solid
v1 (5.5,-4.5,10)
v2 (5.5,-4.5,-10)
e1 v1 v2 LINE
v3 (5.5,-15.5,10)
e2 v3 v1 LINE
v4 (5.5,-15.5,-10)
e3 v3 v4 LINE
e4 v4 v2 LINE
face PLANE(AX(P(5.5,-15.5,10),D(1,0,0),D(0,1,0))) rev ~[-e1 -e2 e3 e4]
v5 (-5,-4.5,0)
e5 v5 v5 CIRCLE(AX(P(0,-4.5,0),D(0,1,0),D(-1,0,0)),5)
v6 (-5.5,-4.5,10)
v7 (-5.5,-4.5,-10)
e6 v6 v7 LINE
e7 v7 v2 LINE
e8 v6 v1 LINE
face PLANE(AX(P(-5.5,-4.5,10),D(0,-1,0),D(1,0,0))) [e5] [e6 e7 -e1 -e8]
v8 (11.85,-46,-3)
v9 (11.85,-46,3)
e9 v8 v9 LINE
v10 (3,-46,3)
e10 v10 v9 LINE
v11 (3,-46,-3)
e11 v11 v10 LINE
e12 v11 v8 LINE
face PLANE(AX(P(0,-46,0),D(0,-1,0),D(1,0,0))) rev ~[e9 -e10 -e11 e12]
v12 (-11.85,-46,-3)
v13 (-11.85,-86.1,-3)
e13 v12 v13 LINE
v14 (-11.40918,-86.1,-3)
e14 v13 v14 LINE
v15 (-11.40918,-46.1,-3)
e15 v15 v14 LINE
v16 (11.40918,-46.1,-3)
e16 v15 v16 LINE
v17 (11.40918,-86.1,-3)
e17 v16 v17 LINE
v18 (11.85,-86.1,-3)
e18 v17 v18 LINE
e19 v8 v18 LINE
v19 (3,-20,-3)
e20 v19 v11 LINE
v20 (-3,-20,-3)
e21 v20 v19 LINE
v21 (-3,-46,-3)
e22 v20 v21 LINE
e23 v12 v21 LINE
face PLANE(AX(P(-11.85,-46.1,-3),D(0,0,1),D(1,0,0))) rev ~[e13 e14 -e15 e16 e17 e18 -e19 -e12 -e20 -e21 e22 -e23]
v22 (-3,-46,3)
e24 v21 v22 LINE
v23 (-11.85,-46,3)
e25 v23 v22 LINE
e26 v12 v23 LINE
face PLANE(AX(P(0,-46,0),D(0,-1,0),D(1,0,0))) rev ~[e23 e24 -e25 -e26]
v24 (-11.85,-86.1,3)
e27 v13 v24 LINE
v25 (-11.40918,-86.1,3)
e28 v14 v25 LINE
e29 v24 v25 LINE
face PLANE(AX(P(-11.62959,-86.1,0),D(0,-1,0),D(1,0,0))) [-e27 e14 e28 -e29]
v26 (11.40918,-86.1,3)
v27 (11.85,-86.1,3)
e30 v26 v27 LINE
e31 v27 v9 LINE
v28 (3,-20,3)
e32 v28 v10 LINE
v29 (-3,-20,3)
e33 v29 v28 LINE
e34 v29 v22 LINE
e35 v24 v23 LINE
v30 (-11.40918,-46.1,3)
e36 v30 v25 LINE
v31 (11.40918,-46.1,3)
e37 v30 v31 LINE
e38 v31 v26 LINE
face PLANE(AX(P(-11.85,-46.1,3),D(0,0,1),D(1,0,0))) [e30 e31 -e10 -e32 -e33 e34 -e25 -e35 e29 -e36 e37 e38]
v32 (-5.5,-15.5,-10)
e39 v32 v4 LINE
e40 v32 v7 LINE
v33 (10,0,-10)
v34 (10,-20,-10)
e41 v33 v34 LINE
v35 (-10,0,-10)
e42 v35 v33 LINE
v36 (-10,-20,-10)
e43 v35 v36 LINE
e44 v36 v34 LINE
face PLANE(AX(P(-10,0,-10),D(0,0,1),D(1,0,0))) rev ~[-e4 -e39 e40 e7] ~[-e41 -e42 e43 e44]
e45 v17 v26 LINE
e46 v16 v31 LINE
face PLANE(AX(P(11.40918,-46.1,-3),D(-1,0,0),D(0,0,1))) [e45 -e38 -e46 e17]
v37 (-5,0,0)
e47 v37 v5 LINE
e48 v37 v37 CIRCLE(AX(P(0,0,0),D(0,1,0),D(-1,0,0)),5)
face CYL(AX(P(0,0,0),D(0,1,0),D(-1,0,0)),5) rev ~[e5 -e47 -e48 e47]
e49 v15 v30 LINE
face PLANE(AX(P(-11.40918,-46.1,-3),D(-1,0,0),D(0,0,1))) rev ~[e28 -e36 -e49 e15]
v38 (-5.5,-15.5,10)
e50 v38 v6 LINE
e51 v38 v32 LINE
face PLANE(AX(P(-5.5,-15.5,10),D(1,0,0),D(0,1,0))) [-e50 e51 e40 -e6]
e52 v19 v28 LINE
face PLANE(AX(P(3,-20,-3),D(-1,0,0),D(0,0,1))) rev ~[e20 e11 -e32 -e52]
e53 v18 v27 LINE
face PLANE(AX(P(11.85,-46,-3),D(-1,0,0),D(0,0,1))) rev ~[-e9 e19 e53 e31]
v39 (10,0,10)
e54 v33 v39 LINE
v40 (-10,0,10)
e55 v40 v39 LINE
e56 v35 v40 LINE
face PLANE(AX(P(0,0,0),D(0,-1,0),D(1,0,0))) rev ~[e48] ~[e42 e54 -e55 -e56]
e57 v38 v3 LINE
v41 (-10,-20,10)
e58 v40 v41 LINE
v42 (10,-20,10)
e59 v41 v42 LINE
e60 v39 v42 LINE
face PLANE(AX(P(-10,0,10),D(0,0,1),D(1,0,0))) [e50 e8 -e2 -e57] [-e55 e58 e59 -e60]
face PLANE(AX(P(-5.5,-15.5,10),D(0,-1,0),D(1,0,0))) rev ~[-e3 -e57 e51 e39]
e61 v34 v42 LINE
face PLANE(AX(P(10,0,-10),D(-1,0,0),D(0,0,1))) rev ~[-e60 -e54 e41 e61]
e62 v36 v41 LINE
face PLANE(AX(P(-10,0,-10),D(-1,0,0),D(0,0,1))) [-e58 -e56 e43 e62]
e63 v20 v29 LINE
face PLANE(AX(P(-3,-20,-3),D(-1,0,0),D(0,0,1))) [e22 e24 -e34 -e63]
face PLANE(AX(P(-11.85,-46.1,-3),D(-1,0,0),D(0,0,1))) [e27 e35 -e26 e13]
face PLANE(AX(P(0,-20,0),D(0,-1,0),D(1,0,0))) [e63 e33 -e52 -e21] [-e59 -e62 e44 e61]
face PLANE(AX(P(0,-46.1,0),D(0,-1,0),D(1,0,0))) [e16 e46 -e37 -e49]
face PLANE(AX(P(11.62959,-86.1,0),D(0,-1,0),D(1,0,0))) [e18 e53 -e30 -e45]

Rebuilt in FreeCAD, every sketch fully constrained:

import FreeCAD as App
import Part
import Sketcher

V = App.Vector

doc = App.newDocument("Part")
params = doc.addObject("Spreadsheet::Sheet", "Params")
for row, (alias, value) in enumerate([
    ("sketch1_width", "20 mm"),
    ("pad1_length", "20 mm"),
    ("sketch2_width", "11 mm"),
    ("pocket1_length", "25 mm"),
    ("sketch3_width", "6 mm"),
    ("pad2_length", "26 mm"),
    ("sketch4_height", "6 mm"),
    ("sketch4_width", "23.7 mm"),
    ("pad3_length", "0.1 mm"),
    ("sketch5_height", "6 mm"),
    ("pad4_length", "40 mm"),
    ("sketch6_diameter", "10 mm"),
    ("pocket2_length", "10 mm"),
], start=1):
    params.set(f"A{row}", alias)
    params.set(f"B{row}", "=" + value)
    params.setAlias(f"B{row}", alias)

body = doc.addObject("PartDesign::Body", "Body")

# Sketch on XZ plane
sketch1 = body.newObject("Sketcher::SketchObject", "Sketch")
sketch1.AttachmentSupport = (doc.getObject("XZ_Plane"), [""])
sketch1.MapMode = "FlatFace"
sketch1.addGeometry([
    Part.LineSegment(V(-10, 10, 0), V(-10, -10, 0)),
    Part.LineSegment(V(-10, -10, 0), V(10, -10, 0)),
    Part.LineSegment(V(10, -10, 0), V(10, 10, 0)),
    Part.LineSegment(V(10, 10, 0), V(-10, 10, 0)),
], False)
sketch1.addConstraint([
    Sketcher.Constraint("Coincident", 0, 2, 1, 1),
    Sketcher.Constraint("Coincident", 1, 2, 2, 1),
    Sketcher.Constraint("Coincident", 2, 2, 3, 1),
    Sketcher.Constraint("Coincident", 3, 2, 0, 1),
    Sketcher.Constraint("Vertical", 0),
    Sketcher.Constraint("Horizontal", 1),
    Sketcher.Constraint("Vertical", 2),
    Sketcher.Constraint("Horizontal", 3),
    Sketcher.Constraint("Symmetric", 0, 2, 2, 2, -1, 1),
    Sketcher.Constraint("Equal", 3, 0),
    Sketcher.Constraint("DistanceX", 1, 1, 1, 2, 20.0),
])
sketch1.setExpression("Constraints[10]", "Params.sketch1_width")
pad1 = body.newObject("PartDesign::Pad", "Pad")
pad1.Profile = sketch1
pad1.setExpression("Length", "Params.pad1_length")

# Sketch on XY plane
sketch2 = body.newObject("Sketcher::SketchObject", "Sketch001")
sketch2.AttachmentSupport = (doc.getObject("XY_Plane"), [""])
sketch2.MapMode = "FlatFace"
sketch2.AttachmentOffset = App.Placement(V(0, 0, 10), App.Rotation())
sketch2.addGeometry([
    Part.LineSegment(V(-5.5, -4.5, 0), V(-5.5, -15.5, 0)),
    Part.LineSegment(V(-5.5, -15.5, 0), V(5.5, -15.5, 0)),
    Part.LineSegment(V(5.5, -15.5, 0), V(5.5, -4.5, 0)),
    Part.LineSegment(V(5.5, -4.5, 0), V(-5.5, -4.5, 0)),
], False)
sketch2.addConstraint([
    Sketcher.Constraint("Coincident", 0, 2, 1, 1),
    Sketcher.Constraint("Coincident", 1, 2, 2, 1),
    Sketcher.Constraint("Coincident", 2, 2, 3, 1),
    Sketcher.Constraint("Coincident", 3, 2, 0, 1),
    Sketcher.Constraint("Vertical", 0),
    Sketcher.Constraint("Horizontal", 1),
    Sketcher.Constraint("Vertical", 2),
    Sketcher.Constraint("Horizontal", 3),
    Sketcher.Constraint("Equal", 3, 0),
    Sketcher.Constraint("DistanceX", 1, 1, 1, 2, 11.0),
    Sketcher.Constraint("DistanceX", 0, 2, -1, 1, 5.5),
    Sketcher.Constraint("DistanceY", 0, 2, -1, 1, 15.5),
])
sketch2.setExpression("Constraints[9]", "Params.sketch2_width")
pocket1 = body.newObject("PartDesign::Pocket", "Pocket")
pocket1.Profile = sketch2
pocket1.setExpression("Length", "Params.pocket1_length")

# Sketch on XZ plane
sketch3 = body.newObject("Sketcher::SketchObject", "Sketch002")
sketch3.AttachmentSupport = (doc.getObject("XZ_Plane"), [""])
sketch3.MapMode = "FlatFace"
sketch3.AttachmentOffset = App.Placement(V(0, 0, 20), App.Rotation())
sketch3.addGeometry([
    Part.LineSegment(V(-3, 3, 0), V(-3, -3, 0)),
    Part.LineSegment(V(-3, -3, 0), V(3, -3, 0)),
    Part.LineSegment(V(3, -3, 0), V(3, 3, 0)),
    Part.LineSegment(V(3, 3, 0), V(-3, 3, 0)),
], False)
sketch3.addConstraint([
    Sketcher.Constraint("Coincident", 0, 2, 1, 1),
    Sketcher.Constraint("Coincident", 1, 2, 2, 1),
    Sketcher.Constraint("Coincident", 2, 2, 3, 1),
    Sketcher.Constraint("Coincident", 3, 2, 0, 1),
    Sketcher.Constraint("Vertical", 0),
    Sketcher.Constraint("Horizontal", 1),
    Sketcher.Constraint("Vertical", 2),
    Sketcher.Constraint("Horizontal", 3),
    Sketcher.Constraint("Symmetric", 0, 2, 2, 2, -1, 1),
    Sketcher.Constraint("Equal", 3, 0),
    Sketcher.Constraint("DistanceX", 1, 1, 1, 2, 6.0),
])
sketch3.setExpression("Constraints[10]", "Params.sketch3_width")
pad2 = body.newObject("PartDesign::Pad", "Pad001")
pad2.Profile = sketch3
pad2.setExpression("Length", "Params.pad2_length")

# Sketch on XZ plane
sketch4 = body.newObject("Sketcher::SketchObject", "Sketch003")
sketch4.AttachmentSupport = (doc.getObject("XZ_Plane"), [""])
sketch4.MapMode = "FlatFace"
sketch4.AttachmentOffset = App.Placement(V(0, 0, 46), App.Rotation())
sketch4.addGeometry([
    Part.LineSegment(V(-11.85, 3, 0), V(-11.85, -3, 0)),
    Part.LineSegment(V(-11.85, -3, 0), V(11.85, -3, 0)),
    Part.LineSegment(V(11.85, -3, 0), V(11.85, 3, 0)),
    Part.LineSegment(V(11.85, 3, 0), V(-11.85, 3, 0)),
], False)
sketch4.addConstraint([
    Sketcher.Constraint("Coincident", 0, 2, 1, 1),
    Sketcher.Constraint("Coincident", 1, 2, 2, 1),
    Sketcher.Constraint("Coincident", 2, 2, 3, 1),
    Sketcher.Constraint("Coincident", 3, 2, 0, 1),
    Sketcher.Constraint("Vertical", 0),
    Sketcher.Constraint("Horizontal", 1),
    Sketcher.Constraint("Vertical", 2),
    Sketcher.Constraint("Horizontal", 3),
    Sketcher.Constraint("Symmetric", 0, 2, 2, 2, -1, 1),
    Sketcher.Constraint("DistanceY", 0, 2, 0, 1, 6.0),
    Sketcher.Constraint("DistanceX", 1, 1, 1, 2, 23.7),
])
sketch4.setExpression("Constraints[9]", "Params.sketch4_height")
sketch4.setExpression("Constraints[10]", "Params.sketch4_width")
pad3 = body.newObject("PartDesign::Pad", "Pad002")
pad3.Profile = sketch4
pad3.setExpression("Length", "Params.pad3_length")

# Sketch on XZ plane
sketch5 = body.newObject("Sketcher::SketchObject", "Sketch004")
sketch5.AttachmentSupport = (doc.getObject("XZ_Plane"), [""])
sketch5.MapMode = "FlatFace"
sketch5.AttachmentOffset = App.Placement(V(0, 0, 46.1), App.Rotation())
sketch5.addGeometry([
    Part.LineSegment(V(-11.85, 3, 0), V(-11.85, -3, 0)),  # 0
    Part.LineSegment(V(-11.85, -3, 0), V(-11.40918, -3, 0)),  # 1
    Part.LineSegment(V(-11.40918, -3, 0), V(-11.40918, 3, 0)),  # 2
    Part.LineSegment(V(-11.40918, 3, 0), V(-11.85, 3, 0)),  # 3
    Part.LineSegment(V(11.40918, 3, 0), V(11.40918, -3, 0)),  # 4
    Part.LineSegment(V(11.40918, -3, 0), V(11.85, -3, 0)),  # 5
    Part.LineSegment(V(11.85, -3, 0), V(11.85, 3, 0)),  # 6
    Part.LineSegment(V(11.85, 3, 0), V(11.40918, 3, 0)),  # 7
], False)
sketch5.addConstraint([
    Sketcher.Constraint("Coincident", 0, 2, 1, 1),
    Sketcher.Constraint("Coincident", 1, 2, 2, 1),
    Sketcher.Constraint("Coincident", 2, 2, 3, 1),
    Sketcher.Constraint("Coincident", 3, 2, 0, 1),
    Sketcher.Constraint("Coincident", 4, 2, 5, 1),
    Sketcher.Constraint("Coincident", 5, 2, 6, 1),
    Sketcher.Constraint("Coincident", 6, 2, 7, 1),
    Sketcher.Constraint("Coincident", 7, 2, 4, 1),
    Sketcher.Constraint("Vertical", 0),
    Sketcher.Constraint("Horizontal", 1),
    Sketcher.Constraint("Vertical", 2),
    Sketcher.Constraint("Horizontal", 3),
    Sketcher.Constraint("Vertical", 4),
    Sketcher.Constraint("Horizontal", 5),
    Sketcher.Constraint("Vertical", 6),
    Sketcher.Constraint("Horizontal", 7),
    Sketcher.Constraint("Symmetric", 2, 2, 4, 2, -1, 1),
    Sketcher.Constraint("Symmetric", 0, 2, 6, 2, -1, 1),
    Sketcher.Constraint("Horizontal", 1, 2, 4, 2),
    Sketcher.Constraint("DistanceY", 0, 2, 0, 1, 6.0),
    Sketcher.Constraint("DistanceX", 0, 2, 5, 2, 23.7),
    Sketcher.Constraint("DistanceX", 1, 1, 1, 2, 0.44082),
])
sketch5.setExpression("Constraints[19]", "Params.sketch5_height")
pad4 = body.newObject("PartDesign::Pad", "Pad003")
pad4.Profile = sketch5
pad4.setExpression("Length", "Params.pad4_length")

# Sketch on XZ plane
sketch6 = body.newObject("Sketcher::SketchObject", "Sketch005")
sketch6.AttachmentSupport = (doc.getObject("XZ_Plane"), [""])
sketch6.MapMode = "FlatFace"
sketch6.addGeometry(Part.Circle(V(0, 0, 0), V(0, 0, 1), 5), False)
sketch6.addConstraint([
    Sketcher.Constraint("Coincident", 0, 3, -1, 1),
    Sketcher.Constraint("Diameter", 0, 10.0),
])
sketch6.setExpression("Constraints[1]", "Params.sketch6_diameter")
pocket2 = body.newObject("PartDesign::Pocket", "Pocket001")
pocket2.Profile = sketch6
pocket2.setExpression("Length", "Params.pocket2_length")
pocket2.Reversed = True

doc.recompute()
